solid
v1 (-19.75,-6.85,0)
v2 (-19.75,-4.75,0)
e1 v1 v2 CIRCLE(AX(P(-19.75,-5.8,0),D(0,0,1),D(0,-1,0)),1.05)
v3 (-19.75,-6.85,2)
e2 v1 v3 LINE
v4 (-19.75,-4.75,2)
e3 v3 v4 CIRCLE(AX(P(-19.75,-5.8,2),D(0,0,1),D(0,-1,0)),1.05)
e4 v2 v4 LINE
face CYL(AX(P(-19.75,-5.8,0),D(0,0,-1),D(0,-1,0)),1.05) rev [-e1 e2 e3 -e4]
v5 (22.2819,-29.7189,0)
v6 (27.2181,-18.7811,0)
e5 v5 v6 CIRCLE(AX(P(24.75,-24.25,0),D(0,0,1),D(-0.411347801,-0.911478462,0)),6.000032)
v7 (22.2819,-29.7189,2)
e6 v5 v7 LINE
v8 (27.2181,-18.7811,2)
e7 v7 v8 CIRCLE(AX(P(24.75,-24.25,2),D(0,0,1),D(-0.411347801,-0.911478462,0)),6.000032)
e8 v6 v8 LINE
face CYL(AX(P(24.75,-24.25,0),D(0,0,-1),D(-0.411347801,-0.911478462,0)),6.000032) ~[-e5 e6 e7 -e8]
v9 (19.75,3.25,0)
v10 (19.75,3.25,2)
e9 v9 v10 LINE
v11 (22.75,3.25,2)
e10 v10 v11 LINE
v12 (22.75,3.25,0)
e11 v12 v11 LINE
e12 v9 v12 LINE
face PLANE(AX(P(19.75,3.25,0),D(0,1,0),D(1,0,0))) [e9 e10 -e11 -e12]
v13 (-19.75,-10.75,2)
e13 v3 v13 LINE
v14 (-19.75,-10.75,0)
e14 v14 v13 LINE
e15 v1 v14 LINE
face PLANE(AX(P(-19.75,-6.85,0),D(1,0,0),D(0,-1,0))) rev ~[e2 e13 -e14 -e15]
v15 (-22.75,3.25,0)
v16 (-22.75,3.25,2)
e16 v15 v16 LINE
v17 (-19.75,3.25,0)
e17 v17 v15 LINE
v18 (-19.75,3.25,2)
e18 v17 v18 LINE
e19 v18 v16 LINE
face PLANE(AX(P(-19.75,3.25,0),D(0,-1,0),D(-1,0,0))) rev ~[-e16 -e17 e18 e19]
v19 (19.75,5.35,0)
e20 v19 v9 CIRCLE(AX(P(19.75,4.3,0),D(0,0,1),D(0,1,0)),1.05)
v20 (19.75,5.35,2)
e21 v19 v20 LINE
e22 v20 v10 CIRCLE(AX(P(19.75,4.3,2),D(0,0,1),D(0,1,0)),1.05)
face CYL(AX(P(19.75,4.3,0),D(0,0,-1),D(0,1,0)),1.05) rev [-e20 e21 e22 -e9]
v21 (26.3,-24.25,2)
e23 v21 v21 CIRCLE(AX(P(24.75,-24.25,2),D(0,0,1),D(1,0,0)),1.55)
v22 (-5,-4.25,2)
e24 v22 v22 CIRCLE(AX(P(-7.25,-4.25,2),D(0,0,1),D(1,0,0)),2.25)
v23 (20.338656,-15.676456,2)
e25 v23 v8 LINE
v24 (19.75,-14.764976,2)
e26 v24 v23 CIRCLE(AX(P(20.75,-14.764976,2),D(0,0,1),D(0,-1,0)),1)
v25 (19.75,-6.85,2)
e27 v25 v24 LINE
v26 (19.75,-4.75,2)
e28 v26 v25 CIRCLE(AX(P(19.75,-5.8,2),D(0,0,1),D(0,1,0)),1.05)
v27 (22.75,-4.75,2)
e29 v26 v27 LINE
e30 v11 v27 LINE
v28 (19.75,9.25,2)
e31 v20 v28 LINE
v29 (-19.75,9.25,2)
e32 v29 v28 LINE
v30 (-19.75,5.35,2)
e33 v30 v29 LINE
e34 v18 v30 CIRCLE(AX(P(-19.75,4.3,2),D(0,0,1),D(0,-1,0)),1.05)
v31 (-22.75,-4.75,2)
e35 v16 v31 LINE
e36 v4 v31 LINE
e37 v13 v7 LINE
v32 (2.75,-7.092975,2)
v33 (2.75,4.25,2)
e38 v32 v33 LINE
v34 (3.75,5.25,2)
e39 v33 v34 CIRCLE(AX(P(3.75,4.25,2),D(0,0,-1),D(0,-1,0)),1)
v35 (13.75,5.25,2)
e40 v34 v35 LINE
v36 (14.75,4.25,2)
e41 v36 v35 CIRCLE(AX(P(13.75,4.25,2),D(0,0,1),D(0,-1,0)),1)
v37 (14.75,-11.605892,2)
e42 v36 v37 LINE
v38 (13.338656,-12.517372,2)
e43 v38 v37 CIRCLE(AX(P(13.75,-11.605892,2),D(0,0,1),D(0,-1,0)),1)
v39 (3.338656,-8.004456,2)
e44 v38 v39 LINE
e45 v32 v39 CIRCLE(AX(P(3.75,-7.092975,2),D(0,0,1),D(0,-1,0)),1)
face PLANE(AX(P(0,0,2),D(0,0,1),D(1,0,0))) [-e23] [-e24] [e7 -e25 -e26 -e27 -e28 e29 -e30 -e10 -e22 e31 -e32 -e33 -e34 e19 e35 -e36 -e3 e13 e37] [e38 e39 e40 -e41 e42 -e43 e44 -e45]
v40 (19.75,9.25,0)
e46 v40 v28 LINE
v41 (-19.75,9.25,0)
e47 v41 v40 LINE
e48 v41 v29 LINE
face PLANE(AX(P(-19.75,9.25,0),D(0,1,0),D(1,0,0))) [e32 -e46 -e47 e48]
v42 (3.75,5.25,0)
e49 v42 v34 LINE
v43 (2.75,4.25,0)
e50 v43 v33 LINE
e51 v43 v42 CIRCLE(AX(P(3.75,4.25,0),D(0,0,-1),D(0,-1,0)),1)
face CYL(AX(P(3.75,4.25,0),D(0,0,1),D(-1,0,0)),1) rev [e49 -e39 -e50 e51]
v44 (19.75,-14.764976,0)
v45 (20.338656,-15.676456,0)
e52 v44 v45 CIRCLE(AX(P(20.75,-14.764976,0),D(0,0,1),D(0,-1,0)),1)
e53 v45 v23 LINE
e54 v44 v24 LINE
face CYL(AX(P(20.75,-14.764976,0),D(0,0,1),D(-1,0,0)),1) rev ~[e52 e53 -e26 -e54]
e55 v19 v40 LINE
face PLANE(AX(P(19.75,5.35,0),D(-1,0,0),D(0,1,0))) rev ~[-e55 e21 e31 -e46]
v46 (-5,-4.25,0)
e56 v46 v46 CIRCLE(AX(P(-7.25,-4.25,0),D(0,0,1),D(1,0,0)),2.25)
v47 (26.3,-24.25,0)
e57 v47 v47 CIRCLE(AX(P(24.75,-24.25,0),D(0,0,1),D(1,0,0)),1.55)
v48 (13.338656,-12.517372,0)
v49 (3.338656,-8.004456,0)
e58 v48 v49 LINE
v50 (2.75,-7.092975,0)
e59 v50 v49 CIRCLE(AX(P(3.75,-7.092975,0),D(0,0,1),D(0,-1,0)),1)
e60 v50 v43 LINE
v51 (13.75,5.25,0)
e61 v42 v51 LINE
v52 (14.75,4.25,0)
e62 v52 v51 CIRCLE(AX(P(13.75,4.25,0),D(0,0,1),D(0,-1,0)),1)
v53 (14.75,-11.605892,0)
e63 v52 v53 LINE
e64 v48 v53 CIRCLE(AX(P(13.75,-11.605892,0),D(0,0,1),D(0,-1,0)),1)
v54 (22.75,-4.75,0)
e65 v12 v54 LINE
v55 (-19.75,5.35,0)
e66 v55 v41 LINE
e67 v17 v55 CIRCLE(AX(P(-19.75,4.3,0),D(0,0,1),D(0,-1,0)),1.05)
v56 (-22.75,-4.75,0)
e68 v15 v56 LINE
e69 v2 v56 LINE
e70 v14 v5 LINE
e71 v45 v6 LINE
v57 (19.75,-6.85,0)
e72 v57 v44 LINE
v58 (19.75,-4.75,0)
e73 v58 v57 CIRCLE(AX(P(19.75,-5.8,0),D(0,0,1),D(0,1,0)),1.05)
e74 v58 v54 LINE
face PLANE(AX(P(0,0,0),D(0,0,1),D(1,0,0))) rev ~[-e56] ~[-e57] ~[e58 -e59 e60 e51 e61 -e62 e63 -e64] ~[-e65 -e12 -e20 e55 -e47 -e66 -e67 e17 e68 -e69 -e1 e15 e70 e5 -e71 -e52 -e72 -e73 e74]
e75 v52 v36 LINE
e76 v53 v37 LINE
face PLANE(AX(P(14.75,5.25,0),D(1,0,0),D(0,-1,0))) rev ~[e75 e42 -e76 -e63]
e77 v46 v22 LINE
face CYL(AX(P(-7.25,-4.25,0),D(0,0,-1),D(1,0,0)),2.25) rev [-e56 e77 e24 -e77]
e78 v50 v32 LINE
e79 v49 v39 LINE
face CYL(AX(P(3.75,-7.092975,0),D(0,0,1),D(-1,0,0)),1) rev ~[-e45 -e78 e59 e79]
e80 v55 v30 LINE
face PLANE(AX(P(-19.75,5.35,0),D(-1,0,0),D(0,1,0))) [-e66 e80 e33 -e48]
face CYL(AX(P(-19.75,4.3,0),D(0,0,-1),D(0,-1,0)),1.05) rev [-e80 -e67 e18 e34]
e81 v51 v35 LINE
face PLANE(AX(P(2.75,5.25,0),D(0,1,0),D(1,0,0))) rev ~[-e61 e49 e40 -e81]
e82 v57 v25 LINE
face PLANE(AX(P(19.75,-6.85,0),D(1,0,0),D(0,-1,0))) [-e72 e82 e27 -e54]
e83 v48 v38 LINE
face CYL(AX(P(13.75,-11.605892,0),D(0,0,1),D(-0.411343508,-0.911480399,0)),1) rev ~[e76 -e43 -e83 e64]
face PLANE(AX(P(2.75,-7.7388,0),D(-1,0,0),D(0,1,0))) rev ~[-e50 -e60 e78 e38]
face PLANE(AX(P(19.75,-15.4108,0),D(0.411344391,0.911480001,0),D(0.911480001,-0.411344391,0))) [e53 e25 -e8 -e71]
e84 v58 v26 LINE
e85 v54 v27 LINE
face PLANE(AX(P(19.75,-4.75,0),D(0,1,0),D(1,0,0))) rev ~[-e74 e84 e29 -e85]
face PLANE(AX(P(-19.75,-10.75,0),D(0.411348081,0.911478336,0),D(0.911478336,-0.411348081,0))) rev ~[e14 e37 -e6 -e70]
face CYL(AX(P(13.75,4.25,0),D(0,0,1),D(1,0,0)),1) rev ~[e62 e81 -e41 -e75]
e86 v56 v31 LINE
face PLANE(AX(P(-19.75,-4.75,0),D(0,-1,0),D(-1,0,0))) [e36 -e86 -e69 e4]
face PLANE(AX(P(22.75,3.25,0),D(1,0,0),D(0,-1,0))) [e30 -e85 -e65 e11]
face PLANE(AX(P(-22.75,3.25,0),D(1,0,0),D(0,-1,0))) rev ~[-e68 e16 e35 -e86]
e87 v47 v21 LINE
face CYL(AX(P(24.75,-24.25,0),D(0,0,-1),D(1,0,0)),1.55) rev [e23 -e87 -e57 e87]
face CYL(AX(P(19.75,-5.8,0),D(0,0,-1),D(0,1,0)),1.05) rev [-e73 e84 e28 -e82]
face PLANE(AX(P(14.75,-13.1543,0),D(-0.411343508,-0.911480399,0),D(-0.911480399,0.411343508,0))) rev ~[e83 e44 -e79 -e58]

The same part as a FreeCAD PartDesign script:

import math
import FreeCAD as App
import Part
import Sketcher
from FreeCAD import Vector
Q = App.Units.Quantity


def edges_at(feature, points):
    """Names of the edges that pass closest to the given points."""
    edges = feature.Shape.Edges
    near = lambda p: min(range(len(edges)), key=lambda i: edges[i].distToShape(Part.Vertex(*p))[0])
    return sorted({f"Edge{near(p) + 1}" for p in points})

doc = App.newDocument("Part")
body = doc.addObject("PartDesign::Body", "Body")

sketch1 = body.newObject("Sketcher::SketchObject", "Sketch")
sketch1.AttachmentSupport = (doc.getObject("XY_Plane"), [""])
sketch1.MapMode = "FlatFace"
sketch1.addGeometry([
    Part.ArcOfCircle(Part.Circle(Vector(-19.8, 4.3, 0), Vector(0, 0, 1), 1), math.radians(-90), math.radians(90)),
    Part.LineSegment(Vector(-19.8, 3.2, 0), Vector(-22.8, 3.2, 0)),
    Part.LineSegment(Vector(-22.8, 3.2, 0), Vector(-22.8, -4.8, 0)),
    Part.LineSegment(Vector(-22.8, -4.8, 0), Vector(-19.8, -4.8, 0)),
    Part.ArcOfCircle(Part.Circle(Vector(-19.8, -5.8, 0), Vector(0, 0, 1), 1), math.radians(-90), math.radians(90)),
    Part.LineSegment(Vector(-19.8, -6.8, 0), Vector(-19.8, -10.8, 0)),
    Part.LineSegment(Vector(-19.8, -10.8, 0), Vector(22.3, -29.7, 0)),
    Part.ArcOfCircle(Part.Circle(Vector(24.8, -24.2, 0), Vector(0, 0, 1), 6), math.radians(-114), math.radians(66)),
    Part.LineSegment(Vector(27.2, -18.8, 0), Vector(19.8, -15.4, 0)),
    Part.LineSegment(Vector(19.8, -15.4, 0), Vector(19.8, -6.8, 0)),
    Part.ArcOfCircle(Part.Circle(Vector(19.8, -5.8, 0), Vector(0, 0, 1), 1), math.radians(90), math.radians(270)),
    Part.LineSegment(Vector(19.8, -4.8, 0), Vector(22.8, -4.8, 0)),
    Part.LineSegment(Vector(22.8, -4.8, 0), Vector(22.8, 3.2, 0)),
    Part.LineSegment(Vector(22.8, 3.2, 0), Vector(19.8, 3.2, 0)),
    Part.ArcOfCircle(Part.Circle(Vector(19.8, 4.3, 0), Vector(0, 0, 1), 1), math.radians(90), math.radians(270)),
    Part.LineSegment(Vector(19.8, 5.3, 0), Vector(19.8, 9.2, 0)),
    Part.LineSegment(Vector(19.8, 9.2, 0), Vector(-19.8, 9.2, 0)),
    Part.LineSegment(Vector(-19.8, 9.2, 0), Vector(-19.8, 5.3, 0)),
    Part.Circle(Vector(24.8, -24.2, 0), Vector(0, 0, 1), 1.6),
    Part.Circle(Vector(-7.2, -4.2, 0), Vector(0, 0, 1), 2.2),
    Part.LineSegment(Vector(2.8, -7.7, 0), Vector(2.8, 5.2, 0)),
    Part.LineSegment(Vector(2.8, 5.2, 0), Vector(14.8, 5.2, 0)),
    Part.LineSegment(Vector(14.8, 5.2, 0), Vector(14.8, -13.2, 0)),
    Part.LineSegment(Vector(14.8, -13.2, 0), Vector(2.8, -7.7, 0)),
], False)
sketch1.addConstraint([
    Sketcher.Constraint("Tangent", 0, 1, 1, 1),
    Sketcher.Constraint("Coincident", 1, 2, 2, 1),
    Sketcher.Constraint("Coincident", 2, 2, 3, 1),
    Sketcher.Constraint("Tangent", 3, 2, 4, 2),
    Sketcher.Constraint("Coincident", 4, 1, 5, 1),
    Sketcher.Constraint("Coincident", 5, 2, 6, 1),
    Sketcher.Constraint("Tangent", 6, 2, 7, 1),
    Sketcher.Constraint("Tangent", 7, 2, 8, 1),
    Sketcher.Constraint("Coincident", 8, 2, 9, 1),
    Sketcher.Constraint("Coincident", 9, 2, 10, 2),
    Sketcher.Constraint("Tangent", 10, 1, 11, 1),
    Sketcher.Constraint("Coincident", 11, 2, 12, 1),
    Sketcher.Constraint("Coincident", 12, 2, 13, 1),
    Sketcher.Constraint("Tangent", 13, 2, 14, 2),
    Sketcher.Constraint("Coincident", 14, 1, 15, 1),
    Sketcher.Constraint("Coincident", 15, 2, 16, 1),
    Sketcher.Constraint("Coincident", 16, 2, 17, 1),
    Sketcher.Constraint("Coincident", 17, 2, 0, 2),
    Sketcher.Constraint("Coincident", 20, 2, 21, 1),
    Sketcher.Constraint("Coincident", 21, 2, 22, 1),
    Sketcher.Constraint("Coincident", 22, 2, 23, 1),
    Sketcher.Constraint("Coincident", 23, 2, 20, 1),
    Sketcher.Constraint("Horizontal", 1),
    Sketcher.Constraint("Vertical", 2),
    Sketcher.Constraint("Horizontal", 3),
    Sketcher.Constraint("Vertical", 5),
    Sketcher.Constraint("Vertical", 9),
    Sketcher.Constraint("Horizontal", 11),
    Sketcher.Constraint("Vertical", 12),
    Sketcher.Constraint("Horizontal", 13),
    Sketcher.Constraint("Vertical", 15),
    Sketcher.Constraint("Horizontal", 16),
    Sketcher.Constraint("Vertical", 17),
    Sketcher.Constraint("Vertical", 20),
    Sketcher.Constraint("Horizontal", 21),
    Sketcher.Constraint("Vertical", 22),
    Sketcher.Constraint("Coincident", 18, 3, 7, 3),
    Sketcher.Constraint("Equal", 0, 4),
    Sketcher.Constraint("Equal", 4, 10),
    Sketcher.Constraint("Equal", 10, 14),
    Sketcher.Constraint("Symmetric", 4, 3, 10, 3, -2),
    Sketcher.Constraint("Symmetric", 0, 3, 14, 3, -2),
    Sketcher.Constraint("Parallel", 6, 8),
    Sketcher.Constraint("Parallel", 8, 23),
    Sketcher.Constraint("Vertical", 0, 3, 4, 3),
    Sketcher.Constraint("Vertical", 3, 2, 4, 1),
    Sketcher.Constraint("Vertical", 14, 3, 8, 2),
    Sketcher.Constraint("Vertical", 13, 2, 14, 1),
    Sketcher.Constraint("Vertical", 5, 2, 16, 2),
    Sketcher.Constraint("Equal", 3, 11),
    Sketcher.Constraint("Equal", 5, 15),
    Sketcher.Constraint("Radius", 7, Q("6 mm")),
    Sketcher.Constraint("Diameter", 18, Q("3.1 mm")),
    Sketcher.Constraint("Diameter", 19, Q("4.5 mm")),
    Sketcher.Constraint("DistanceX", 1, 2, 1, 1, Q("3 mm")),
    Sketcher.Constraint("DistanceX", 21, 1, 21, 2, Q("12 mm")),
    Sketcher.Constraint("DistanceY", 2, 2, 2, 1, Q("8 mm")),
    Sketcher.Constraint("Radius", 0, Q("1.05 mm")),
    Sketcher.Constraint("DistanceX", 16, 2, 16, 1, Q("39.5 mm")),
    Sketcher.Constraint("DistanceX", 10, 3, 7, 3, Q("5 mm")),
    Sketcher.Constraint("DistanceX", 19, 3, 7, 3, Q("32 mm")),
    Sketcher.Constraint("DistanceY", 7, 3, 19, 3, Q("20 mm")),
    Sketcher.Constraint("DistanceY", 5, 2, 3, 2, Q("6 mm")),
    Sketcher.Constraint("DistanceY", 20, 2, 15, 2, Q("4 mm")),
    Sketcher.Constraint("DistanceX", 21, 2, 14, 1, Q("5 mm")),
    Sketcher.Constraint("DistanceY", -1, 1, 0, 3, Q("4.3 mm")),
    Sketcher.Constraint("Angle", 6, Q("-24.2895 deg")),
    Sketcher.Constraint("DistanceY", 20, 1, 20, 2, Q("12.9888 mm")),
])
pad1 = body.newObject("PartDesign::Pad", "Pad")
pad1.Profile = sketch1
pad1.Length = 2
doc.recompute()

fillet = body.newObject("PartDesign::Fillet", "Fillet")
fillet.Base = (pad1, edges_at(pad1, [(19.75, -15.411, 1)]))
fillet.Radius = 1
doc.recompute()

fillet2 = body.newObject("PartDesign::Fillet", "Fillet001")
fillet2.Base = (fillet, edges_at(fillet, [
    (2.75, 5.25, 1),
    (14.75, 5.25, 1),
    (2.75, -7.739, 1),
    (14.75, -13.154, 1),
]))
fillet2.Radius = 1

doc.recompute()
